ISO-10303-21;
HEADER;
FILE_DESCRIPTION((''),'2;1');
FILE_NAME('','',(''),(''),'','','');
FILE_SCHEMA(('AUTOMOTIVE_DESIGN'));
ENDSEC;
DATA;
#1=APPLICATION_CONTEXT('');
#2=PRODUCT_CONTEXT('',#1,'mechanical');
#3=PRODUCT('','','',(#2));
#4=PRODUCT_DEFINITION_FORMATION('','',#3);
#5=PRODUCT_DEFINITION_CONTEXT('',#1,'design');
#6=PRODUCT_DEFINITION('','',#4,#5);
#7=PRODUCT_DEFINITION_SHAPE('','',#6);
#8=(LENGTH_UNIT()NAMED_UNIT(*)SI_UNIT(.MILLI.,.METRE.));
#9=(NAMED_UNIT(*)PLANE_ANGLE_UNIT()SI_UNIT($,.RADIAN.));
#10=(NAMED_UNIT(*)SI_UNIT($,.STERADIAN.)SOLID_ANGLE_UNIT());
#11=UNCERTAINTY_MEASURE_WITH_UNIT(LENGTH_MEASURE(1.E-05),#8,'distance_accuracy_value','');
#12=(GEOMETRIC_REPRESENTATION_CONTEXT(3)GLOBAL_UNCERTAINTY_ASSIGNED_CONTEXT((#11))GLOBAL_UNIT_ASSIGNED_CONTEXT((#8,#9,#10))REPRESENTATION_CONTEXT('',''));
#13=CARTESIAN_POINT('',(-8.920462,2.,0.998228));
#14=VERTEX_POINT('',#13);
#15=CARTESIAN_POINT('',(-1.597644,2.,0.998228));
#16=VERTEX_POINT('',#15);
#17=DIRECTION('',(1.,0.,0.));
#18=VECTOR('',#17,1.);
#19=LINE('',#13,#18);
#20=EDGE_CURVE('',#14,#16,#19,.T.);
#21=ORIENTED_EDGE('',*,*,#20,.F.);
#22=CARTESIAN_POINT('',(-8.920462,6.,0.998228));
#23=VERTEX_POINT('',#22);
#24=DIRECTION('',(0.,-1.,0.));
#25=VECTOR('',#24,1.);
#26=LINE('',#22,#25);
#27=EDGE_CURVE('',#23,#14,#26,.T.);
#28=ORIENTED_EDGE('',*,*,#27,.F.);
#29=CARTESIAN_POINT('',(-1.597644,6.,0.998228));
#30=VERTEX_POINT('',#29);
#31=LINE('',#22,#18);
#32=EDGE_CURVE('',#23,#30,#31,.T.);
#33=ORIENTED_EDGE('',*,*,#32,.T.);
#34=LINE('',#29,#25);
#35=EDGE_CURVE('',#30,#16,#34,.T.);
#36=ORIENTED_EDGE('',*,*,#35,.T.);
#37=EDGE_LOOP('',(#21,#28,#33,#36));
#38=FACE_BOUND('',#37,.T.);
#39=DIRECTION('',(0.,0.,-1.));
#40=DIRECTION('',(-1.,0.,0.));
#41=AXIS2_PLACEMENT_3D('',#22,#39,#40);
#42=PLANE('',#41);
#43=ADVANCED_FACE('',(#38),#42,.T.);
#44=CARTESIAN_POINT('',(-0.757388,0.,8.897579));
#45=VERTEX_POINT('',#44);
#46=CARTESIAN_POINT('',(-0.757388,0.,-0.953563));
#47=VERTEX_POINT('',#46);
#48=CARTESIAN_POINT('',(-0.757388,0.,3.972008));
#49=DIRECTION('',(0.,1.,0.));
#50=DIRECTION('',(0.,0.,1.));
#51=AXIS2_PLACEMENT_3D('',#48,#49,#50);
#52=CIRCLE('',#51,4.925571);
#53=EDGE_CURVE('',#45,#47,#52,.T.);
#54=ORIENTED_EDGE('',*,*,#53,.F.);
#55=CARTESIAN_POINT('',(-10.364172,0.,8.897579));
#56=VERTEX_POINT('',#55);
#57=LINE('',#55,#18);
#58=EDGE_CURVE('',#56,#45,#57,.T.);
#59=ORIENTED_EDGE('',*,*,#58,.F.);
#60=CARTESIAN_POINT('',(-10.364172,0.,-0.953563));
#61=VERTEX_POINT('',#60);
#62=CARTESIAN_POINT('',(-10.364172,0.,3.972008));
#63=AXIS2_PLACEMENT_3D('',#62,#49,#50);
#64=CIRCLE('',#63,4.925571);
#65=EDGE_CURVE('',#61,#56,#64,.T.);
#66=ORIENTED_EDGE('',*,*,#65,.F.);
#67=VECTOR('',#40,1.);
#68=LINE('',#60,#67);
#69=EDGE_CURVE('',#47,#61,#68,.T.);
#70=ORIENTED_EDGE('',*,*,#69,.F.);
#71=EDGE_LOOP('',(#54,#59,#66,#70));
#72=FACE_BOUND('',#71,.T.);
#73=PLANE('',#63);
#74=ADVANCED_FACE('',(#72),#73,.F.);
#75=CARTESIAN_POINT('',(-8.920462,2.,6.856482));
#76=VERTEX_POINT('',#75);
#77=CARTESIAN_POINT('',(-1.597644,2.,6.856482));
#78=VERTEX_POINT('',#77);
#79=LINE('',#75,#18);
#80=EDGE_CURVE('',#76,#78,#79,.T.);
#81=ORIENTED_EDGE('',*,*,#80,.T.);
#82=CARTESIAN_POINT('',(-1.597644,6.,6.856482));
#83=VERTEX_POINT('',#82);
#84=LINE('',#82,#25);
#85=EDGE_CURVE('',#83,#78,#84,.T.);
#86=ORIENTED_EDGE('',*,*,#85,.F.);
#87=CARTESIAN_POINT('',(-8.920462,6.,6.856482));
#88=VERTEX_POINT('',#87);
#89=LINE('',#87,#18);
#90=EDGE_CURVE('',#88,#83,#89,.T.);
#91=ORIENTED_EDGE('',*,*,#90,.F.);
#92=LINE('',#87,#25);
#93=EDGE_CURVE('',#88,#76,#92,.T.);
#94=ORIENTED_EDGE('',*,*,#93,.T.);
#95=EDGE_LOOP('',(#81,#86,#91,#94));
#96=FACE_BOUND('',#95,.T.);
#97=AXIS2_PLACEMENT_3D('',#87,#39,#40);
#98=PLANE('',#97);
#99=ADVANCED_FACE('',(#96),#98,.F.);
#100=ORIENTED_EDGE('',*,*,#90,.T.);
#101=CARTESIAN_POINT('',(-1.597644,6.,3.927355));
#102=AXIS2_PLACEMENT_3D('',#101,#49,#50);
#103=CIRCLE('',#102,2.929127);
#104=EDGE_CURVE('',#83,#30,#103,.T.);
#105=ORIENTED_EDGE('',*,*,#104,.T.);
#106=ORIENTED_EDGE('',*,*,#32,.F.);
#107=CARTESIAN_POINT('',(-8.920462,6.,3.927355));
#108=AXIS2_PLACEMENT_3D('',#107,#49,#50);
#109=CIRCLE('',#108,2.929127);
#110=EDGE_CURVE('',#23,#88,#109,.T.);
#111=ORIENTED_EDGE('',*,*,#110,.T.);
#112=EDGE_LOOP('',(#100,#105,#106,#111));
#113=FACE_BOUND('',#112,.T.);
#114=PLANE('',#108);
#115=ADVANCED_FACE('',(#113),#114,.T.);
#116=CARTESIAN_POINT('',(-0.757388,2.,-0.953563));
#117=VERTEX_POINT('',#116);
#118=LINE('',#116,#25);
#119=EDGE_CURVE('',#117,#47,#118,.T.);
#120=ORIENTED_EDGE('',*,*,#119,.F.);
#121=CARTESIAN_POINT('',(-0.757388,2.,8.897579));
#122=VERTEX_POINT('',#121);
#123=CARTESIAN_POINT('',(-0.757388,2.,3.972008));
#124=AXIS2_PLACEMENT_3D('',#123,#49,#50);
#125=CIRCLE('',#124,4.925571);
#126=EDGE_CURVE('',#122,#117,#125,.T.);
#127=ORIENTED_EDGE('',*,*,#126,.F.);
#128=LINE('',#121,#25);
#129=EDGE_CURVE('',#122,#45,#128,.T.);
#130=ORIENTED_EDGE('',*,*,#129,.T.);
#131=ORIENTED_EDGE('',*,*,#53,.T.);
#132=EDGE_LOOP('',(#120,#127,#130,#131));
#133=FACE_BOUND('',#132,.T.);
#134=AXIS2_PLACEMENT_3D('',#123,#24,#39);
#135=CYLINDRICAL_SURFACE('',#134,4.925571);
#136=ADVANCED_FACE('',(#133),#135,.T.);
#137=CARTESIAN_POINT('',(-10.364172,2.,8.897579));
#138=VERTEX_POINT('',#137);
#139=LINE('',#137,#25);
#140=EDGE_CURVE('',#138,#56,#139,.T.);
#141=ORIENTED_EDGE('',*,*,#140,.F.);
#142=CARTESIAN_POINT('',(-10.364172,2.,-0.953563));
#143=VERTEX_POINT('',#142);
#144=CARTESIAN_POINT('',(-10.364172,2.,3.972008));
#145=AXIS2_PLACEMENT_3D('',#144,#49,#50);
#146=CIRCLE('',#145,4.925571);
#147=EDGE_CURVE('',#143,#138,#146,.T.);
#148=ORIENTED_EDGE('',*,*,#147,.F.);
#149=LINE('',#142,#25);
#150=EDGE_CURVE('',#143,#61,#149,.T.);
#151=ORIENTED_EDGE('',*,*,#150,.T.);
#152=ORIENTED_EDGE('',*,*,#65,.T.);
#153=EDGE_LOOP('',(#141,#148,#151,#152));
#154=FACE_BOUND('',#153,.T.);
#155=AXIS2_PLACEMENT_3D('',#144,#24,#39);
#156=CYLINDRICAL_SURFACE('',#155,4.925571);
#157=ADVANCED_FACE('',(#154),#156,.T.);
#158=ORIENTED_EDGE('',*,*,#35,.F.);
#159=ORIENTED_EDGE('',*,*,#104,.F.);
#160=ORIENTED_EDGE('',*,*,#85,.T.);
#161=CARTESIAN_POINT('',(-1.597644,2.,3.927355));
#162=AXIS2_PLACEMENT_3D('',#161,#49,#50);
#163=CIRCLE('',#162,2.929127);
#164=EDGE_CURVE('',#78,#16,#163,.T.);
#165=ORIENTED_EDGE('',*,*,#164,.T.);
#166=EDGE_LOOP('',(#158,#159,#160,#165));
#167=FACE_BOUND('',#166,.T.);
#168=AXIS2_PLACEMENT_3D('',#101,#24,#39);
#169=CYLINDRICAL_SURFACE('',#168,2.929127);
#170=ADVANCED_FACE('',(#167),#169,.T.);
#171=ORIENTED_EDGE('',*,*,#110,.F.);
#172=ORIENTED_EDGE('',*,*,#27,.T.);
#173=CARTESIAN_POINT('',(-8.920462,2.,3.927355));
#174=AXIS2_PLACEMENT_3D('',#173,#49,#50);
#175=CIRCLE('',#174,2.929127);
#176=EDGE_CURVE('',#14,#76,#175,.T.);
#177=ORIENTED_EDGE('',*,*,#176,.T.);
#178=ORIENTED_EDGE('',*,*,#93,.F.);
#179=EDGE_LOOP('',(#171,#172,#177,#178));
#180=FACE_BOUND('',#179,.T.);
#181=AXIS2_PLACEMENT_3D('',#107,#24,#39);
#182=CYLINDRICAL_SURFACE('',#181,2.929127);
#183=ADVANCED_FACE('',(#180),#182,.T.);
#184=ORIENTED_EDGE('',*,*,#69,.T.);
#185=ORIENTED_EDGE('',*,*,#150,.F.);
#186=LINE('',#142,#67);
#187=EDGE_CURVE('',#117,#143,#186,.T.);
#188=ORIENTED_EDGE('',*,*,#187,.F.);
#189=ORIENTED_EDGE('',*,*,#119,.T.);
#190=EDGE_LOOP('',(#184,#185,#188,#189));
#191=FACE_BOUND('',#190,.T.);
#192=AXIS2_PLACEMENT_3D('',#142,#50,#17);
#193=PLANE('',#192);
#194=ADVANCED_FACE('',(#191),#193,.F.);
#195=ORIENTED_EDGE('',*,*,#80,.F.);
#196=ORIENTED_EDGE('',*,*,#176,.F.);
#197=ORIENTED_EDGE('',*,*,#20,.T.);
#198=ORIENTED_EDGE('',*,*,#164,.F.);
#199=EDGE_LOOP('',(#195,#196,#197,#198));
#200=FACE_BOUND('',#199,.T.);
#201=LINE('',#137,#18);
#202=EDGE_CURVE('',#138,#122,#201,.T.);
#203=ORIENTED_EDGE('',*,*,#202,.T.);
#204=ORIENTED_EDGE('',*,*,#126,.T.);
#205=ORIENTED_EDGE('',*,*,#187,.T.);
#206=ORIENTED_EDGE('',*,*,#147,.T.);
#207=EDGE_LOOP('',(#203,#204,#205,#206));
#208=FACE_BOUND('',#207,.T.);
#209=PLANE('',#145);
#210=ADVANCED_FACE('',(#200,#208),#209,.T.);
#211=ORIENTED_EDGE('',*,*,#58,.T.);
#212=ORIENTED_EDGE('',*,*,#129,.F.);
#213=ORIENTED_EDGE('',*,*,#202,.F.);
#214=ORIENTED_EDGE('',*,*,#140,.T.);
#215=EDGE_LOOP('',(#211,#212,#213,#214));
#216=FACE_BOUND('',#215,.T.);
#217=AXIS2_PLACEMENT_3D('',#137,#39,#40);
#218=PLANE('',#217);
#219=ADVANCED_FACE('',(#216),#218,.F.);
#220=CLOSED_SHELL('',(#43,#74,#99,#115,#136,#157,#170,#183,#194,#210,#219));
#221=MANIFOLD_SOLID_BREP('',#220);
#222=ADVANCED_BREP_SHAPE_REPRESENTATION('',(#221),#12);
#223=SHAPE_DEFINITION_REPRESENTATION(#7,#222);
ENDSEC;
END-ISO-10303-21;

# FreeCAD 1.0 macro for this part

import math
import FreeCAD as App
import Part
import Sketcher
from FreeCAD import Vector
Q = App.Units.Quantity

doc = App.newDocument("Part")
body = doc.addObject("PartDesign::Body", "Body")

# Sketch on XZ plane
sketch1 = body.newObject("Sketcher::SketchObject", "Sketch")
sketch1.AttachmentSupport = (doc.getObject("XZ_Plane"), [""])
sketch1.MapMode = "FlatFace"
sketch1.addGeometry([
    Part.LineSegment(Vector(-0.8, -1, 0), Vector(-10.4, -1, 0)),
    Part.ArcOfCircle(Part.Circle(Vector(-10.4, 4, 0), Vector(0, 0, 1), 4.9), math.radians(90), math.radians(270)),
    Part.LineSegment(Vector(-10.4, 8.9, 0), Vector(-0.8, 8.9, 0)),
    Part.ArcOfCircle(Part.Circle(Vector(-0.8, 4, 0), Vector(0, 0, 1), 4.9), math.radians(-90), math.radians(90)),
], False)
sketch1.addConstraint([
    Sketcher.Constraint("Tangent", 0, 2, 1, 2),
    Sketcher.Constraint("Tangent", 1, 1, 2, 1),
    Sketcher.Constraint("Tangent", 2, 2, 3, 2),
    Sketcher.Constraint("Tangent", 3, 1, 0, 1),
    Sketcher.Constraint("Horizontal", 0),
    Sketcher.Constraint("Horizontal", 2),
    Sketcher.Constraint("Radius", 1, Q("4.925571 mm")),
    Sketcher.Constraint("DistanceX", 0, 2, 0, 1, Q("9.606783 mm")),
    Sketcher.Constraint("DistanceX", 1, 3, -1, 1, Q("10.364172 mm")),
    Sketcher.Constraint("DistanceY", -1, 1, 1, 1, Q("8.897579 mm")),
])
pad1 = body.newObject("PartDesign::Pad", "Pad")
pad1.Profile = sketch1
pad1.Length = 2
pad1.Reversed = True

# Sketch on XZ plane
sketch2 = body.newObject("Sketcher::SketchObject", "Sketch001")
sketch2.AttachmentSupport = (doc.getObject("XZ_Plane"), [""])
sketch2.MapMode = "FlatFace"
sketch2.AttachmentOffset = App.Placement(Vector(0, 0, -2), App.Rotation())
sketch2.addGeometry([
    Part.LineSegment(Vector(-1.6, 1, 0), Vector(-8.9, 1, 0)),
    Part.ArcOfCircle(Part.Circle(Vector(-8.9, 3.9, 0), Vector(0, 0, 1), 2.9), math.radians(90), math.radians(270)),
    Part.LineSegment(Vector(-8.9, 6.9, 0), Vector(-1.6, 6.9, 0)),
    Part.ArcOfCircle(Part.Circle(Vector(-1.6, 3.9, 0), Vector(0, 0, 1), 2.9), math.radians(-90), math.radians(90)),
], False)
sketch2.addConstraint([
    Sketcher.Constraint("Tangent", 0, 2, 1, 2),
    Sketcher.Constraint("Tangent", 1, 1, 2, 1),
    Sketcher.Constraint("Tangent", 2, 2, 3, 2),
    Sketcher.Constraint("Tangent", 3, 1, 0, 1),
    Sketcher.Constraint("Horizontal", 0),
    Sketcher.Constraint("Horizontal", 2),
    Sketcher.Constraint("Radius", 1, Q("2.929127 mm")),
    Sketcher.Constraint("DistanceX", 0, 2, 0, 1, Q("7.322817 mm")),
    Sketcher.Constraint("DistanceX", 1, 3, -1, 1, Q("8.920462 mm")),
    Sketcher.Constraint("DistanceY", -1, 1, 0, 2, Q("0.998228 mm")),
])
pad2 = body.newObject("PartDesign::Pad", "Pad001")
pad2.Profile = sketch2
pad2.Length = 4
pad2.Reversed = True

doc.recompute()
